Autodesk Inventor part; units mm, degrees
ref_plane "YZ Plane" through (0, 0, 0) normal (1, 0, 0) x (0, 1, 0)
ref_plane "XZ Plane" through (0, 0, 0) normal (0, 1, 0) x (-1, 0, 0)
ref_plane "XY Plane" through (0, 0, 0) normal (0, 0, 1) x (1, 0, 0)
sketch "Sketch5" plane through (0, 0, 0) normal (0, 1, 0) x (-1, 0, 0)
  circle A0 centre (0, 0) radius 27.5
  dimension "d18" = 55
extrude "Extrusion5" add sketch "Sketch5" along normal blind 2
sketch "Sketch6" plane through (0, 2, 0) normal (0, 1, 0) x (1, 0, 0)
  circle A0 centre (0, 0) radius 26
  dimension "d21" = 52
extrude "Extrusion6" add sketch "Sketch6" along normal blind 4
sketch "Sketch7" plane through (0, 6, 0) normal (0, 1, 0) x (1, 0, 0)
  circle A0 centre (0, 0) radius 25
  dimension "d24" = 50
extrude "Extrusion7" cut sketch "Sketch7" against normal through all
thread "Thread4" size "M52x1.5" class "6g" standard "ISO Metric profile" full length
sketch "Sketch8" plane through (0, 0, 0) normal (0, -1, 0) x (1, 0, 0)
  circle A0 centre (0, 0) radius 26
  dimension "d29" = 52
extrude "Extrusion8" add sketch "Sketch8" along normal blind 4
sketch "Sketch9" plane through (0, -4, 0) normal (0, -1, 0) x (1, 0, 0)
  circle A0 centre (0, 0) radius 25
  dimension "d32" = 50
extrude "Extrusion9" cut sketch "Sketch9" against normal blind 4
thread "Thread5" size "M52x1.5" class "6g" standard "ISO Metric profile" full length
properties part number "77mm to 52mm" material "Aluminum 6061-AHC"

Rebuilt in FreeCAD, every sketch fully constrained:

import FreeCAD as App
import Part
import Sketcher

V = App.Vector
Q = App.Units.Quantity

doc = App.newDocument("Part")
body = doc.addObject("PartDesign::Body", "Body")

sketch1 = body.newObject("Sketcher::SketchObject", "Sketch")
sketch1.AttachmentSupport = (doc.getObject("XZ_Plane"), [""])
sketch1.MapMode = "FlatFace"
sketch1.addGeometry(Part.Circle(V(0, 0, 0), V(0, 0, 1), 28), False)
sketch1.addConstraint([
    Sketcher.Constraint("Coincident", 0, 3, -1, 1),
    Sketcher.Constraint("Diameter", 0, Q("55 mm")),
])
pad1 = body.newObject("PartDesign::Pad", "Pad")
pad1.Profile = sketch1
pad1.Length = 2
pad1.Reversed = True

sketch2 = body.newObject("Sketcher::SketchObject", "Sketch001")
sketch2.AttachmentSupport = (doc.getObject("XZ_Plane"), [""])
sketch2.MapMode = "FlatFace"
sketch2.AttachmentOffset = App.Placement(V(0, 0, -2), App.Rotation())
sketch2.addGeometry(Part.Circle(V(0, 0, 0), V(0, 0, 1), 26), False)
sketch2.addConstraint([
    Sketcher.Constraint("Coincident", 0, 3, -1, 1),
    Sketcher.Constraint("Diameter", 0, Q("52 mm")),
])
pad2 = body.newObject("PartDesign::Pad", "Pad001")
pad2.Profile = sketch2
pad2.Length = 4
pad2.Reversed = True

sketch3 = body.newObject("Sketcher::SketchObject", "Sketch002")
sketch3.AttachmentSupport = (doc.getObject("XZ_Plane"), [""])
sketch3.MapMode = "FlatFace"
sketch3.AttachmentOffset = App.Placement(V(0, 0, -6), App.Rotation())
sketch3.addGeometry(Part.Circle(V(0, 0, 0), V(0, 0, 1), 25), False)
sketch3.addConstraint([
    Sketcher.Constraint("Coincident", 0, 3, -1, 1),
    Sketcher.Constraint("Diameter", 0, Q("50 mm")),
])
pocket1 = body.newObject("PartDesign::Pocket", "Pocket")
pocket1.Profile = sketch3
pocket1.Type = "ThroughAll"
pocket1.Reversed = True

sketch4 = body.newObject("Sketcher::SketchObject", "Sketch003")
sketch4.AttachmentSupport = (doc.getObject("XZ_Plane"), [""])
sketch4.MapMode = "FlatFace"
sketch4.addGeometry(Part.Circle(V(0, 0, 0), V(0, 0, 1), 26), False)
sketch4.addConstraint([
    Sketcher.Constraint("Coincident", 0, 3, -1, 1),
    Sketcher.Constraint("Diameter", 0, Q("52 mm")),
])
pad3 = body.newObject("PartDesign::Pad", "Pad002")
pad3.Profile = sketch4
pad3.Length = 4

sketch5 = body.newObject("Sketcher::SketchObject", "Sketch004")
sketch5.AttachmentSupport = (doc.getObject("XZ_Plane"), [""])
sketch5.MapMode = "FlatFace"
sketch5.AttachmentOffset = App.Placement(V(0, 0, 4), App.Rotation())
sketch5.addGeometry(Part.Circle(V(0, 0, 0), V(0, 0, 1), 25), False)
sketch5.addConstraint([
    Sketcher.Constraint("Coincident", 0, 3, -1, 1),
    Sketcher.Constraint("Diameter", 0, Q("50 mm")),
])
pocket2 = body.newObject("PartDesign::Pocket", "Pocket001")
pocket2.Profile = sketch5
pocket2.Length = 4

doc.recompute()
